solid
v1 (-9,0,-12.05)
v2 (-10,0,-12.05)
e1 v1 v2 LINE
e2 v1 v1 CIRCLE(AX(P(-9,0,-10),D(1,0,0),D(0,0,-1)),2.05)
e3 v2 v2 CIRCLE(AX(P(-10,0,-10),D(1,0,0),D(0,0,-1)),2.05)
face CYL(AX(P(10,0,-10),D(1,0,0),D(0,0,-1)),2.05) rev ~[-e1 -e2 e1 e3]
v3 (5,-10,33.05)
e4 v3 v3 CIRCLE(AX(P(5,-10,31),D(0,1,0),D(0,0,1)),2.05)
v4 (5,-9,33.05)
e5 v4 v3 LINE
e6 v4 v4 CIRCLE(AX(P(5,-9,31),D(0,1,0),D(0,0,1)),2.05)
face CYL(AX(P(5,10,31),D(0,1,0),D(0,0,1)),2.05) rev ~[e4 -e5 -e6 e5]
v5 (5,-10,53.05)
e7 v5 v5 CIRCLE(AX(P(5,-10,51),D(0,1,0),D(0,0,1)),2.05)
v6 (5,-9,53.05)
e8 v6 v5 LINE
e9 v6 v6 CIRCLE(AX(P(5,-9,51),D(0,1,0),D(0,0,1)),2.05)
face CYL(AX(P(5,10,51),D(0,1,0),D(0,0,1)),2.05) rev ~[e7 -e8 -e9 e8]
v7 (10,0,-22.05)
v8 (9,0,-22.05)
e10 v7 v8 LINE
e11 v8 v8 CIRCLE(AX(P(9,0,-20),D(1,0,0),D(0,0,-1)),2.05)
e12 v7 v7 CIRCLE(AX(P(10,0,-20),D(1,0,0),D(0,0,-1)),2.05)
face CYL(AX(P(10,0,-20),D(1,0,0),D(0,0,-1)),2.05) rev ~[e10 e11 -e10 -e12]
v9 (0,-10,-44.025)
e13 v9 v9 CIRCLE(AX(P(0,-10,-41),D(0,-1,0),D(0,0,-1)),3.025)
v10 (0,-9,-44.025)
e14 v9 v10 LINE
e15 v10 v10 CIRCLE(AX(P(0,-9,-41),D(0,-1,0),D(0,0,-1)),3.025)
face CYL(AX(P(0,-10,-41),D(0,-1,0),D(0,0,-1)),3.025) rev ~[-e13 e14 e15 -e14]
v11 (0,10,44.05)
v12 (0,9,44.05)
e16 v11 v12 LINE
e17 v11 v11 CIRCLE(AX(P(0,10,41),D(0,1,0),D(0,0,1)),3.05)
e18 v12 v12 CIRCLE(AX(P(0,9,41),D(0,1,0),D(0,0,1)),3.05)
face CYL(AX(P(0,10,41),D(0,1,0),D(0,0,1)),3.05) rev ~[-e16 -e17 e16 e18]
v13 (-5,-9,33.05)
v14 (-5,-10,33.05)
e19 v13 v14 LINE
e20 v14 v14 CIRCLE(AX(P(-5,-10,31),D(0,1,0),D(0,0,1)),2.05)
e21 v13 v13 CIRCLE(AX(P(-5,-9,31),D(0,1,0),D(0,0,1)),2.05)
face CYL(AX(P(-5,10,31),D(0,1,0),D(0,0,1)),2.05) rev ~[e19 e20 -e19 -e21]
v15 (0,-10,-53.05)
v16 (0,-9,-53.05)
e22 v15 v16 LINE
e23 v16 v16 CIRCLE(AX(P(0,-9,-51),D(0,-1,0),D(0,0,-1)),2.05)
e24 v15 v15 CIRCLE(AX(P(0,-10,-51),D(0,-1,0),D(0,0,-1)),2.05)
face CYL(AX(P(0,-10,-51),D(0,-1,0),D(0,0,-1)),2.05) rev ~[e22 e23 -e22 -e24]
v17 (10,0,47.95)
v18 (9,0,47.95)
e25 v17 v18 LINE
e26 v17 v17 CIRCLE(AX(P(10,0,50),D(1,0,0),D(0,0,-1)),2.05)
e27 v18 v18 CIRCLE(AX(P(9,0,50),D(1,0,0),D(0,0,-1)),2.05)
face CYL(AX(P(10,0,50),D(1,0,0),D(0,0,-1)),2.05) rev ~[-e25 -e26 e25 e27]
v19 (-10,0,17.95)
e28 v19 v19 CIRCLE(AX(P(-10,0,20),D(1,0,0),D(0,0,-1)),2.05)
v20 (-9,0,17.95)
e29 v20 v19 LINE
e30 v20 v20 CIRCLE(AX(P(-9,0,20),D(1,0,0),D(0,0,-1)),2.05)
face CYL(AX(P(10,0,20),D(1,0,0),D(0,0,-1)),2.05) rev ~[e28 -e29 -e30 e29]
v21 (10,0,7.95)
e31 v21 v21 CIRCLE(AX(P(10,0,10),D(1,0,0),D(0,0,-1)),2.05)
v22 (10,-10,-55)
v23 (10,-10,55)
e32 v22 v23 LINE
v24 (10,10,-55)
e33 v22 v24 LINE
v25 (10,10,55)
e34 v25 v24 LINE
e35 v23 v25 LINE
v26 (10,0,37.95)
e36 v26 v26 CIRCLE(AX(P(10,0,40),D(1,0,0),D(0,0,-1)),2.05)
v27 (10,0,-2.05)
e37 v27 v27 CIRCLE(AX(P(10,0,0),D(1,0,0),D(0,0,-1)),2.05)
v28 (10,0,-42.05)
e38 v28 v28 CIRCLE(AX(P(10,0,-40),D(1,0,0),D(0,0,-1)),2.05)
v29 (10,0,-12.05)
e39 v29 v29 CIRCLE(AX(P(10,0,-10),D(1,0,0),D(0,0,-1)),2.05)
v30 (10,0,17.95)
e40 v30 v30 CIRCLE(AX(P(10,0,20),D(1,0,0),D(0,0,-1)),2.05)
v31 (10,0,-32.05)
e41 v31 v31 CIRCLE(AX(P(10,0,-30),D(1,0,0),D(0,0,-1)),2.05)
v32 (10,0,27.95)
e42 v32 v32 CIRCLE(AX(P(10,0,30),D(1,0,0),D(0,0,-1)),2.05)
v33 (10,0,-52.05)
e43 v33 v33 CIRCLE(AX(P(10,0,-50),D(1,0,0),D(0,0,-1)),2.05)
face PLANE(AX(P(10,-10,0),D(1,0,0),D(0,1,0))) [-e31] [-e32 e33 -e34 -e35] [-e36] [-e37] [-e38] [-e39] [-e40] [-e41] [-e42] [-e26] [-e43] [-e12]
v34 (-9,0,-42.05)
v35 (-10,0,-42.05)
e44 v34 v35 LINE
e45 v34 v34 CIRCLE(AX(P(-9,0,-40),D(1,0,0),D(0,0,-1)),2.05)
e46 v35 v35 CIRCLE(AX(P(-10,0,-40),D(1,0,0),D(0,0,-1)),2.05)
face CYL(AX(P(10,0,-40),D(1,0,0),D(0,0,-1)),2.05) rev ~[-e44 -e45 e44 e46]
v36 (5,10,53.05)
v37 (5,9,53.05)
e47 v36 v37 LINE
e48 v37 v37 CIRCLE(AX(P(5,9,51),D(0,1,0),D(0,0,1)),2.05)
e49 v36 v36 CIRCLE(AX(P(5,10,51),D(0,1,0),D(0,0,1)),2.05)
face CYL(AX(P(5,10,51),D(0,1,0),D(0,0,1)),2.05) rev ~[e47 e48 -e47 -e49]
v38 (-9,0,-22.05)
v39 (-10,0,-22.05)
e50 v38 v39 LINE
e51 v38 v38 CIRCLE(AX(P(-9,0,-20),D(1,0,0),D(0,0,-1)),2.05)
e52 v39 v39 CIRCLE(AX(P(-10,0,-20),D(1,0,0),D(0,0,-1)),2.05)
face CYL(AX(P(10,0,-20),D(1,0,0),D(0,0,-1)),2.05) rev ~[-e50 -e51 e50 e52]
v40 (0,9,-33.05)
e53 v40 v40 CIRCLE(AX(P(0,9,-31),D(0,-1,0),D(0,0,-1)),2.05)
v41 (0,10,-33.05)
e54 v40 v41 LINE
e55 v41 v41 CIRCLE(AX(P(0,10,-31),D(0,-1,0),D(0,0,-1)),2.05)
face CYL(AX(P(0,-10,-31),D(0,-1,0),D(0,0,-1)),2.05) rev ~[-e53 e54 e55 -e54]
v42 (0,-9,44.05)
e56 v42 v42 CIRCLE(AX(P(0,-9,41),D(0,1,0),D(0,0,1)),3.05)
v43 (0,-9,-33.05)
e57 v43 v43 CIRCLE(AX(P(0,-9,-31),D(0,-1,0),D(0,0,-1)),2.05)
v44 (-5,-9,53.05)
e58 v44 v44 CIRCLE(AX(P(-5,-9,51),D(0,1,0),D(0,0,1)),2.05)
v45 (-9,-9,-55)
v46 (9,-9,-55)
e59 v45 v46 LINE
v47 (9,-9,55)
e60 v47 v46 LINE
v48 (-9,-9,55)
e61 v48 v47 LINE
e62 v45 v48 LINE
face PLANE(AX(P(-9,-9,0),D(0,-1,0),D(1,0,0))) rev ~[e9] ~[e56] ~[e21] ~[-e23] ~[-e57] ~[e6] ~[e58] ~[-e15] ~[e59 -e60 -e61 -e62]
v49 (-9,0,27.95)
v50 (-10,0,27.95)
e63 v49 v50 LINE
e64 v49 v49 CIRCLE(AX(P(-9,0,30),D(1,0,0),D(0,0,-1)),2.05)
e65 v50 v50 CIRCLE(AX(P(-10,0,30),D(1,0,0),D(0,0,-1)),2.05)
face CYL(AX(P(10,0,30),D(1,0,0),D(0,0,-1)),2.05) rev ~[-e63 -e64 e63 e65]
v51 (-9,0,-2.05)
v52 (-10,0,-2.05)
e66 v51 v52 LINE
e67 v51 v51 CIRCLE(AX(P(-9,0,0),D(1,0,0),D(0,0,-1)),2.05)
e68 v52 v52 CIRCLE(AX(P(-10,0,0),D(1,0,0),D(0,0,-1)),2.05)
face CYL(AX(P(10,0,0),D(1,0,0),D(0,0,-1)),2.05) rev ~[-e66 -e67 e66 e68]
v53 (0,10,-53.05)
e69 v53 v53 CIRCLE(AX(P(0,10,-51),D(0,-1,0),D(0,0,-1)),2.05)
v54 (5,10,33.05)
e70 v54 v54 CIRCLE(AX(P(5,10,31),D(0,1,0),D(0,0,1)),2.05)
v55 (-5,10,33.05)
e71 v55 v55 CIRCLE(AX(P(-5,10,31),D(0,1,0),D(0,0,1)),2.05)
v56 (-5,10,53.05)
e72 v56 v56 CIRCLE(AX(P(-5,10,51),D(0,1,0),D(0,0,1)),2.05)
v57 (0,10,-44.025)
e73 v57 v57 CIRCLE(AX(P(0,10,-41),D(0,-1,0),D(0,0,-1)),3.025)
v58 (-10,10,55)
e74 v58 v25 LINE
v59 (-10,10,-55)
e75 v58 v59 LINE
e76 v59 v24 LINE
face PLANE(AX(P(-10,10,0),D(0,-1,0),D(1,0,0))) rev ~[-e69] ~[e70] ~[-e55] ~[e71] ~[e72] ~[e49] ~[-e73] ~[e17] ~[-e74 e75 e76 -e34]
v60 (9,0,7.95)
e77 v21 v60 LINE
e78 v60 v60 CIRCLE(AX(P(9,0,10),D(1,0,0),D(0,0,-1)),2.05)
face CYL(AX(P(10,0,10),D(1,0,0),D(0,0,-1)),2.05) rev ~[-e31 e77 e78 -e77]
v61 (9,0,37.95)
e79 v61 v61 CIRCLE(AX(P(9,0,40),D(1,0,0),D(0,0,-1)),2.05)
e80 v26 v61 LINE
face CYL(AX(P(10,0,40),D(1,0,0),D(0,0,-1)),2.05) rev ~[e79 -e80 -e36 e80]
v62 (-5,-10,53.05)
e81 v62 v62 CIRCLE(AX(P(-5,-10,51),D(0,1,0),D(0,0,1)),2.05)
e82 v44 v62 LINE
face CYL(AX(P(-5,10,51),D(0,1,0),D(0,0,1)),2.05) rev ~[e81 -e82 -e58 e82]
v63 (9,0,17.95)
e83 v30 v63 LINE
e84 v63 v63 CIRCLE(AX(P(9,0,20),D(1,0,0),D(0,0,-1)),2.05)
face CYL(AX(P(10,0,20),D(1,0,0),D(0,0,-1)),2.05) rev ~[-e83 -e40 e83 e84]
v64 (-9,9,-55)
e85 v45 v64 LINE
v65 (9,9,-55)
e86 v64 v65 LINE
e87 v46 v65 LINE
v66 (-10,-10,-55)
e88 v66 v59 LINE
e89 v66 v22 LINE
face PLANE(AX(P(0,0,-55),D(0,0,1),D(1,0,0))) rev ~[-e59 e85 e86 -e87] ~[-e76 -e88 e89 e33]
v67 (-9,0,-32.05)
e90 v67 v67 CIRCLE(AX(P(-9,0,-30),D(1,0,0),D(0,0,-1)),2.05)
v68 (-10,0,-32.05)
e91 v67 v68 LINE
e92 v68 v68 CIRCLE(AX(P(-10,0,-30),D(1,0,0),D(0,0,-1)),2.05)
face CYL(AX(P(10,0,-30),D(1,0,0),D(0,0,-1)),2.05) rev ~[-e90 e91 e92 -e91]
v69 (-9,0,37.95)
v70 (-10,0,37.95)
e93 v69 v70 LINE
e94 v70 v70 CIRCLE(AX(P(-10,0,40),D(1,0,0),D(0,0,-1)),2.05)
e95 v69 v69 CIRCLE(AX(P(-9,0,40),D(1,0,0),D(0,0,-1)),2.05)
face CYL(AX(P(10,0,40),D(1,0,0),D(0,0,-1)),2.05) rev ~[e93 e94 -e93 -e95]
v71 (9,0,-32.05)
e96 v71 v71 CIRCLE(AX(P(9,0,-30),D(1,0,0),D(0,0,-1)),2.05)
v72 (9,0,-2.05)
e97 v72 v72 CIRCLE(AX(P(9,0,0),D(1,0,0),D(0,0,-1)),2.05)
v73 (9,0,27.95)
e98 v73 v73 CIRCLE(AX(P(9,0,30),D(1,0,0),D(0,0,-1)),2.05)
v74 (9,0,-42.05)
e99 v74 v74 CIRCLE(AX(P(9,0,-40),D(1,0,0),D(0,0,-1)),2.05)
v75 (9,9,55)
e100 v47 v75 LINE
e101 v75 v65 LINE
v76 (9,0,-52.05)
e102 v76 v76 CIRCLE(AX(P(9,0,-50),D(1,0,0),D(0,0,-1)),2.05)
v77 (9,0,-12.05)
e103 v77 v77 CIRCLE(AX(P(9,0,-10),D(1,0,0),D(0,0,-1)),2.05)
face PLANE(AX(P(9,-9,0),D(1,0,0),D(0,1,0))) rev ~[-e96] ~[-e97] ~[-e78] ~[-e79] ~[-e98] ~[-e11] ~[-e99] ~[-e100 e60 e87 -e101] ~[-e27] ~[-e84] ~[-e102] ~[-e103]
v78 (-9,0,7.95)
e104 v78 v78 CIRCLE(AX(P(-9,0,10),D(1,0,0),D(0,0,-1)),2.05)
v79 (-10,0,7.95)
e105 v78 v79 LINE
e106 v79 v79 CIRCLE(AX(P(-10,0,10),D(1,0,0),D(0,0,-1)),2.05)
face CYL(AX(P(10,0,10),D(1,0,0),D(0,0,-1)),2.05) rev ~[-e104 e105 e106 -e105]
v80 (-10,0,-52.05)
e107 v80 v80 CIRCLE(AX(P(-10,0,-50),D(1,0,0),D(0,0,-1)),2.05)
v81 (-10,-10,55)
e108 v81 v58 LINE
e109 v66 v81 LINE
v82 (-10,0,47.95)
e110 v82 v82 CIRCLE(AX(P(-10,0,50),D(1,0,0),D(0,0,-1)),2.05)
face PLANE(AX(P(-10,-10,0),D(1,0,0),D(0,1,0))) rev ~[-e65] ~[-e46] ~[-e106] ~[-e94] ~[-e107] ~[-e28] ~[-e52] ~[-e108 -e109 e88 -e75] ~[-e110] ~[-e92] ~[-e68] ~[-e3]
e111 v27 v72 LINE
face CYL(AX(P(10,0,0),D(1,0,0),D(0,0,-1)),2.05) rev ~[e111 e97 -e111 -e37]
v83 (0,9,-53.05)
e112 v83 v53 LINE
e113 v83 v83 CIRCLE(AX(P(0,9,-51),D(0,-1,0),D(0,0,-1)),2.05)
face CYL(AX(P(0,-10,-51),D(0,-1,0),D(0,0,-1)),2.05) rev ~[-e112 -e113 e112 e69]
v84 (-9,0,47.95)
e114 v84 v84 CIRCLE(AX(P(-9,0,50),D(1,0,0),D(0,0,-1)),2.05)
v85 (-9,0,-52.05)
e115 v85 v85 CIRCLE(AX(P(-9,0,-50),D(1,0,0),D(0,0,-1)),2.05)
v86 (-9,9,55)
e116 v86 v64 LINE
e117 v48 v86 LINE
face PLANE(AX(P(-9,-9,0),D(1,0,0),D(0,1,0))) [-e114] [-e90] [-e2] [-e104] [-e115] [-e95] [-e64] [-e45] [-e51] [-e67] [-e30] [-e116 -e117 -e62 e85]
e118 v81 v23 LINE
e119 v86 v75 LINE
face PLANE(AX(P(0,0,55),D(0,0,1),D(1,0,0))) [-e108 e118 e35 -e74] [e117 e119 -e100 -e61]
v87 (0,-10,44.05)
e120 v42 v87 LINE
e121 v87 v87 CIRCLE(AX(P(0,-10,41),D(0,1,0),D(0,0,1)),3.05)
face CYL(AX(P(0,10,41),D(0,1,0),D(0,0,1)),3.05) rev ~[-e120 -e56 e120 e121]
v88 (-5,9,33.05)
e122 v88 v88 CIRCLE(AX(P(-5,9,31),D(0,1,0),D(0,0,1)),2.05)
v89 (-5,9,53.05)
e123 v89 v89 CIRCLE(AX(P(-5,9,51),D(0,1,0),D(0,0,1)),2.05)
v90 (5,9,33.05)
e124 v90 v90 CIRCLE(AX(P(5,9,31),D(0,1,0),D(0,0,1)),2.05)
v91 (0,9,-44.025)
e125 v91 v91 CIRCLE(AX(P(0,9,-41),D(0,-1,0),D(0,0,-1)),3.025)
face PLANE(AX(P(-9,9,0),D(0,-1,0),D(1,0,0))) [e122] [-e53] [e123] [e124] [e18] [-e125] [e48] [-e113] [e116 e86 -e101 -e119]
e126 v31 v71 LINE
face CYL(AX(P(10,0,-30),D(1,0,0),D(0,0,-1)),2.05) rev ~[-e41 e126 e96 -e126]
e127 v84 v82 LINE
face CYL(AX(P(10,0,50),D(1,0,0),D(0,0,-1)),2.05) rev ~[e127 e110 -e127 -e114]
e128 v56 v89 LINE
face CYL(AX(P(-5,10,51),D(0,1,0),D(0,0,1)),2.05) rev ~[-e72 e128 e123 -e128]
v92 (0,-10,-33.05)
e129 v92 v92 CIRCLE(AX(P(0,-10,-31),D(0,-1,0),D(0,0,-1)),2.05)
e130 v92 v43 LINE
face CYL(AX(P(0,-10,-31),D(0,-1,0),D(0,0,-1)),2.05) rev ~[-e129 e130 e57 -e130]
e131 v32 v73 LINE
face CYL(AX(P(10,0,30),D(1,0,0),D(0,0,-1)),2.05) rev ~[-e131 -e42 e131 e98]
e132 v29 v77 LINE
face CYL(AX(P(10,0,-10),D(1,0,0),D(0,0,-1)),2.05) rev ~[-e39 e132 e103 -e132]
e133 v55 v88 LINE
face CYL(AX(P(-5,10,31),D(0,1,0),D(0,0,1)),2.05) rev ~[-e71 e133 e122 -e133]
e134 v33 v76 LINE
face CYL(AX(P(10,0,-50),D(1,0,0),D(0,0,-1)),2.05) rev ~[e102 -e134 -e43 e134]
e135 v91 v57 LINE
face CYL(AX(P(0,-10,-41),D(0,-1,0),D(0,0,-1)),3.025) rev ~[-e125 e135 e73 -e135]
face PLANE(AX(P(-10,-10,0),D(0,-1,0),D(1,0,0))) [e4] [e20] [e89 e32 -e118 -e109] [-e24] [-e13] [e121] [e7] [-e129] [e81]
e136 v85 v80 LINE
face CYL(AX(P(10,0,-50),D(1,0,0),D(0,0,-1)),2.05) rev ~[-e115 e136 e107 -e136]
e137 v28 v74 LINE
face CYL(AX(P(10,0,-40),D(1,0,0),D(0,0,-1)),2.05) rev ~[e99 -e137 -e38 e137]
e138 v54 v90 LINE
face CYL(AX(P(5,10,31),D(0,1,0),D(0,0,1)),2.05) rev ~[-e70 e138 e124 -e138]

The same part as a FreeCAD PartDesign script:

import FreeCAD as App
import Part
import Sketcher
from FreeCAD import Vector


def add_polygon(sketch, points):
    """Adds a closed chain of lines whose ends are joined by coincident constraints."""
    first, n = sketch.GeometryCount, len(points)
    for a, b in zip(points, points[1:] + points[:1]):
        sketch.addGeometry(Part.LineSegment(App.Vector(*a, 0), App.Vector(*b, 0)), False)
    for i in range(n):
        sketch.addConstraint(Sketcher.Constraint("Coincident", first + i, 2, first + (i + 1) % n, 1))

doc = App.newDocument("Part")
body = doc.addObject("PartDesign::Body", "Body")

sketch1 = body.newObject("Sketcher::SketchObject", "Sketch")
sketch1.AttachmentSupport = (doc.getObject("XY_Plane"), [""])
sketch1.MapMode = "FlatFace"
add_polygon(sketch1, [(-10, 10), (-10, -10), (10, -10), (10, 10)])
add_polygon(sketch1, [(9, -9), (-9, -9), (-9, 9), (9, 9)])
sketch1.addConstraint(Sketcher.Constraint("Vertical", 0))
sketch1.addConstraint(Sketcher.Constraint("Horizontal", 1))
sketch1.addConstraint(Sketcher.Constraint("Vertical", 2))
sketch1.addConstraint(Sketcher.Constraint("Horizontal", 3))
sketch1.addConstraint(Sketcher.Constraint("Horizontal", 4))
sketch1.addConstraint(Sketcher.Constraint("Vertical", 5))
sketch1.addConstraint(Sketcher.Constraint("Horizontal", 6))
sketch1.addConstraint(Sketcher.Constraint("Vertical", 7))
sketch1.addConstraint(Sketcher.Constraint("Symmetric", 0, 2, 2, 2, -1, 1))
sketch1.addConstraint(Sketcher.Constraint("Symmetric", 4, 2, 6, 2, -1, 1))
sketch1.addConstraint(Sketcher.Constraint("Equal", 3, 0))
sketch1.addConstraint(Sketcher.Constraint("Equal", 6, 5))
sketch1.addConstraint(Sketcher.Constraint("DistanceX", 1, 1, 1, 2, 20.0))
sketch1.addConstraint(Sketcher.Constraint("DistanceX", 4, 2, 4, 1, 18.0))
pad1 = body.newObject("PartDesign::Pad", "Pad")
pad1.Profile = sketch1
pad1.Length = 110
pad1.Midplane = True

sketch2 = body.newObject("Sketcher::SketchObject", "Sketch001")
sketch2.AttachmentSupport = (doc.getObject("XZ_Plane"), [""])
sketch2.MapMode = "FlatFace"
sketch2.AttachmentOffset = App.Placement(Vector(0, 0, -10), App.Rotation())
sketch2.addGeometry(Part.Circle(Vector(-5, 31, 0), Vector(0, 0, 1), 2), False)
sketch2.addGeometry(Part.Circle(Vector(5, 31, 0), Vector(0, 0, 1), 2), False)
sketch2.addGeometry(Part.Circle(Vector(5, 51, 0), Vector(0, 0, 1), 2), False)
sketch2.addGeometry(Part.Circle(Vector(-5, 51, 0), Vector(0, 0, 1), 2), False)
sketch2.addGeometry(Part.Circle(Vector(0, 41, 0), Vector(0, 0, 1), 3), False)
sketch2.addConstraint(Sketcher.Constraint("Equal", 0, 1))
sketch2.addConstraint(Sketcher.Constraint("Equal", 1, 2))
sketch2.addConstraint(Sketcher.Constraint("Equal", 2, 3))
sketch2.addConstraint(Sketcher.Constraint("Symmetric", 0, 3, 1, 3, -2))
sketch2.addConstraint(Sketcher.Constraint("Symmetric", 2, 3, 3, 3, -2))
sketch2.addConstraint(Sketcher.Constraint("PointOnObject", 4, 3, -2))
sketch2.addConstraint(Sketcher.Constraint("Vertical", 1, 3, 2, 3))
sketch2.addConstraint(Sketcher.Constraint("Diameter", 0, 4.1))
sketch2.addConstraint(Sketcher.Constraint("Diameter", 4, 6.1))
sketch2.addConstraint(Sketcher.Constraint("DistanceX", 0, 3, -1, 1, 5.0))
sketch2.addConstraint(Sketcher.Constraint("DistanceY", -1, 1, 0, 3, 31.0))
sketch2.addConstraint(Sketcher.Constraint("DistanceY", -1, 1, 2, 3, 51.0))
sketch2.addConstraint(Sketcher.Constraint("DistanceY", -1, 1, 4, 3, 41.0))
pocket1 = body.newObject("PartDesign::Pocket", "Pocket")
pocket1.Profile = sketch2
pocket1.Length = 20
pocket1.Reversed = True

sketch3 = body.newObject("Sketcher::SketchObject", "Sketch002")
sketch3.AttachmentSupport = (doc.getObject("XZ_Plane"), [""])
sketch3.MapMode = "FlatFace"
sketch3.AttachmentOffset = App.Placement(Vector(0, 0, 10), App.Rotation())
sketch3.addGeometry(Part.Circle(Vector(0, -51, 0), Vector(0, 0, 1), 2), False)
sketch3.addGeometry(Part.Circle(Vector(0, -31, 0), Vector(0, 0, 1), 2), False)
sketch3.addGeometry(Part.Circle(Vector(0, -41, 0), Vector(0, 0, 1), 3), False)
sketch3.addConstraint(Sketcher.Constraint("Equal", 0, 1))
sketch3.addConstraint(Sketcher.Constraint("PointOnObject", 0, 3, -2))
sketch3.addConstraint(Sketcher.Constraint("PointOnObject", 1, 3, -2))
sketch3.addConstraint(Sketcher.Constraint("PointOnObject", 2, 3, -2))
sketch3.addConstraint(Sketcher.Constraint("Diameter", 0, 4.1))
sketch3.addConstraint(Sketcher.Constraint("Diameter", 2, 6.05))
sketch3.addConstraint(Sketcher.Constraint("DistanceY", 0, 3, -1, 1, 51.0))
sketch3.addConstraint(Sketcher.Constraint("DistanceY", 1, 3, -1, 1, 31.0))
sketch3.addConstraint(Sketcher.Constraint("DistanceY", 2, 3, -1, 1, 41.0))
pocket2 = body.newObject("PartDesign::Pocket", "Pocket001")
pocket2.Profile = sketch3
pocket2.Type = "ThroughAll"

sketch4 = body.newObject("Sketcher::SketchObject", "Sketch003")
sketch4.AttachmentSupport = (doc.getObject("YZ_Plane"), [""])
sketch4.MapMode = "FlatFace"
sketch4.AttachmentOffset = App.Placement(Vector(0, 0, 10), App.Rotation())
sketch4.addGeometry(Part.Circle(Vector(0, 50, 0), Vector(0, 0, 1), 2), False)
sketch4.addGeometry(Part.Circle(Vector(0, 40, 0), Vector(0, 0, 1), 2), False)
sketch4.addGeometry(Part.Circle(Vector(0, 30, 0), Vector(0, 0, 1), 2), False)
sketch4.addGeometry(Part.Circle(Vector(0, 20, 0), Vector(0, 0, 1), 2), False)
sketch4.addGeometry(Part.Circle(Vector(0, 10, 0), Vector(0, 0, 1), 2), False)
sketch4.addGeometry(Part.Circle(Vector(0, 0, 0), Vector(0, 0, 1), 2), False)
sketch4.addGeometry(Part.Circle(Vector(0, -10, 0), Vector(0, 0, 1), 2), False)
sketch4.addGeometry(Part.Circle(Vector(0, -20, 0), Vector(0, 0, 1), 2), False)
sketch4.addGeometry(Part.Circle(Vector(0, -30, 0), Vector(0, 0, 1), 2), False)
sketch4.addGeometry(Part.Circle(Vector(0, -40, 0), Vector(0, 0, 1), 2), False)
sketch4.addGeometry(Part.Circle(Vector(0, -50, 0), Vector(0, 0, 1), 2), False)
sketch4.addConstraint(Sketcher.Constraint("Coincident", 5, 3, -1, 1))
sketch4.addConstraint(Sketcher.Constraint("Equal", 0, 1))
sketch4.addConstraint(Sketcher.Constraint("Equal", 1, 2))
sketch4.addConstraint(Sketcher.Constraint("Equal", 2, 3))
sketch4.addConstraint(Sketcher.Constraint("Equal", 3, 4))
sketch4.addConstraint(Sketcher.Constraint("Equal", 4, 5))
sketch4.addConstraint(Sketcher.Constraint("Equal", 5, 6))
sketch4.addConstraint(Sketcher.Constraint("Equal", 6, 7))
sketch4.addConstraint(Sketcher.Constraint("Equal", 7, 8))
sketch4.addConstraint(Sketcher.Constraint("Equal", 8, 9))
sketch4.addConstraint(Sketcher.Constraint("Equal", 9, 10))
sketch4.addConstraint(Sketcher.Constraint("Symmetric", 4, 3, 6, 3, -1, 1))
sketch4.addConstraint(Sketcher.Constraint("Symmetric", 3, 3, 7, 3, -1, 1))
sketch4.addConstraint(Sketcher.Constraint("Symmetric", 2, 3, 8, 3, -1, 1))
sketch4.addConstraint(Sketcher.Constraint("Symmetric", 1, 3, 9, 3, -1, 1))
sketch4.addConstraint(Sketcher.Constraint("Symmetric", 0, 3, 10, 3, -1, 1))
sketch4.addConstraint(Sketcher.Constraint("PointOnObject", 0, 3, -2))
sketch4.addConstraint(Sketcher.Constraint("PointOnObject", 1, 3, -2))
sketch4.addConstraint(Sketcher.Constraint("PointOnObject", 2, 3, -2))
sketch4.addConstraint(Sketcher.Constraint("PointOnObject", 3, 3, -2))
sketch4.addConstraint(Sketcher.Constraint("PointOnObject", 4, 3, -2))
sketch4.addConstraint(Sketcher.Constraint("Diameter", 0, 4.1))
sketch4.addConstraint(Sketcher.Constraint("DistanceY", -1, 1, 0, 3, 50.0))
sketch4.addConstraint(Sketcher.Constraint("DistanceY", -1, 1, 1, 3, 40.0))
sketch4.addConstraint(Sketcher.Constraint("DistanceY", -1, 1, 2, 3, 30.0))
sketch4.addConstraint(Sketcher.Constraint("DistanceY", -1, 1, 3, 3, 20.0))
sketch4.addConstraint(Sketcher.Constraint("DistanceY", -1, 1, 4, 3, 10.0))
pocket3 = body.newObject("PartDesign::Pocket", "Pocket002")
pocket3.Profile = sketch4
pocket3.Length = 30

doc.recompute()
